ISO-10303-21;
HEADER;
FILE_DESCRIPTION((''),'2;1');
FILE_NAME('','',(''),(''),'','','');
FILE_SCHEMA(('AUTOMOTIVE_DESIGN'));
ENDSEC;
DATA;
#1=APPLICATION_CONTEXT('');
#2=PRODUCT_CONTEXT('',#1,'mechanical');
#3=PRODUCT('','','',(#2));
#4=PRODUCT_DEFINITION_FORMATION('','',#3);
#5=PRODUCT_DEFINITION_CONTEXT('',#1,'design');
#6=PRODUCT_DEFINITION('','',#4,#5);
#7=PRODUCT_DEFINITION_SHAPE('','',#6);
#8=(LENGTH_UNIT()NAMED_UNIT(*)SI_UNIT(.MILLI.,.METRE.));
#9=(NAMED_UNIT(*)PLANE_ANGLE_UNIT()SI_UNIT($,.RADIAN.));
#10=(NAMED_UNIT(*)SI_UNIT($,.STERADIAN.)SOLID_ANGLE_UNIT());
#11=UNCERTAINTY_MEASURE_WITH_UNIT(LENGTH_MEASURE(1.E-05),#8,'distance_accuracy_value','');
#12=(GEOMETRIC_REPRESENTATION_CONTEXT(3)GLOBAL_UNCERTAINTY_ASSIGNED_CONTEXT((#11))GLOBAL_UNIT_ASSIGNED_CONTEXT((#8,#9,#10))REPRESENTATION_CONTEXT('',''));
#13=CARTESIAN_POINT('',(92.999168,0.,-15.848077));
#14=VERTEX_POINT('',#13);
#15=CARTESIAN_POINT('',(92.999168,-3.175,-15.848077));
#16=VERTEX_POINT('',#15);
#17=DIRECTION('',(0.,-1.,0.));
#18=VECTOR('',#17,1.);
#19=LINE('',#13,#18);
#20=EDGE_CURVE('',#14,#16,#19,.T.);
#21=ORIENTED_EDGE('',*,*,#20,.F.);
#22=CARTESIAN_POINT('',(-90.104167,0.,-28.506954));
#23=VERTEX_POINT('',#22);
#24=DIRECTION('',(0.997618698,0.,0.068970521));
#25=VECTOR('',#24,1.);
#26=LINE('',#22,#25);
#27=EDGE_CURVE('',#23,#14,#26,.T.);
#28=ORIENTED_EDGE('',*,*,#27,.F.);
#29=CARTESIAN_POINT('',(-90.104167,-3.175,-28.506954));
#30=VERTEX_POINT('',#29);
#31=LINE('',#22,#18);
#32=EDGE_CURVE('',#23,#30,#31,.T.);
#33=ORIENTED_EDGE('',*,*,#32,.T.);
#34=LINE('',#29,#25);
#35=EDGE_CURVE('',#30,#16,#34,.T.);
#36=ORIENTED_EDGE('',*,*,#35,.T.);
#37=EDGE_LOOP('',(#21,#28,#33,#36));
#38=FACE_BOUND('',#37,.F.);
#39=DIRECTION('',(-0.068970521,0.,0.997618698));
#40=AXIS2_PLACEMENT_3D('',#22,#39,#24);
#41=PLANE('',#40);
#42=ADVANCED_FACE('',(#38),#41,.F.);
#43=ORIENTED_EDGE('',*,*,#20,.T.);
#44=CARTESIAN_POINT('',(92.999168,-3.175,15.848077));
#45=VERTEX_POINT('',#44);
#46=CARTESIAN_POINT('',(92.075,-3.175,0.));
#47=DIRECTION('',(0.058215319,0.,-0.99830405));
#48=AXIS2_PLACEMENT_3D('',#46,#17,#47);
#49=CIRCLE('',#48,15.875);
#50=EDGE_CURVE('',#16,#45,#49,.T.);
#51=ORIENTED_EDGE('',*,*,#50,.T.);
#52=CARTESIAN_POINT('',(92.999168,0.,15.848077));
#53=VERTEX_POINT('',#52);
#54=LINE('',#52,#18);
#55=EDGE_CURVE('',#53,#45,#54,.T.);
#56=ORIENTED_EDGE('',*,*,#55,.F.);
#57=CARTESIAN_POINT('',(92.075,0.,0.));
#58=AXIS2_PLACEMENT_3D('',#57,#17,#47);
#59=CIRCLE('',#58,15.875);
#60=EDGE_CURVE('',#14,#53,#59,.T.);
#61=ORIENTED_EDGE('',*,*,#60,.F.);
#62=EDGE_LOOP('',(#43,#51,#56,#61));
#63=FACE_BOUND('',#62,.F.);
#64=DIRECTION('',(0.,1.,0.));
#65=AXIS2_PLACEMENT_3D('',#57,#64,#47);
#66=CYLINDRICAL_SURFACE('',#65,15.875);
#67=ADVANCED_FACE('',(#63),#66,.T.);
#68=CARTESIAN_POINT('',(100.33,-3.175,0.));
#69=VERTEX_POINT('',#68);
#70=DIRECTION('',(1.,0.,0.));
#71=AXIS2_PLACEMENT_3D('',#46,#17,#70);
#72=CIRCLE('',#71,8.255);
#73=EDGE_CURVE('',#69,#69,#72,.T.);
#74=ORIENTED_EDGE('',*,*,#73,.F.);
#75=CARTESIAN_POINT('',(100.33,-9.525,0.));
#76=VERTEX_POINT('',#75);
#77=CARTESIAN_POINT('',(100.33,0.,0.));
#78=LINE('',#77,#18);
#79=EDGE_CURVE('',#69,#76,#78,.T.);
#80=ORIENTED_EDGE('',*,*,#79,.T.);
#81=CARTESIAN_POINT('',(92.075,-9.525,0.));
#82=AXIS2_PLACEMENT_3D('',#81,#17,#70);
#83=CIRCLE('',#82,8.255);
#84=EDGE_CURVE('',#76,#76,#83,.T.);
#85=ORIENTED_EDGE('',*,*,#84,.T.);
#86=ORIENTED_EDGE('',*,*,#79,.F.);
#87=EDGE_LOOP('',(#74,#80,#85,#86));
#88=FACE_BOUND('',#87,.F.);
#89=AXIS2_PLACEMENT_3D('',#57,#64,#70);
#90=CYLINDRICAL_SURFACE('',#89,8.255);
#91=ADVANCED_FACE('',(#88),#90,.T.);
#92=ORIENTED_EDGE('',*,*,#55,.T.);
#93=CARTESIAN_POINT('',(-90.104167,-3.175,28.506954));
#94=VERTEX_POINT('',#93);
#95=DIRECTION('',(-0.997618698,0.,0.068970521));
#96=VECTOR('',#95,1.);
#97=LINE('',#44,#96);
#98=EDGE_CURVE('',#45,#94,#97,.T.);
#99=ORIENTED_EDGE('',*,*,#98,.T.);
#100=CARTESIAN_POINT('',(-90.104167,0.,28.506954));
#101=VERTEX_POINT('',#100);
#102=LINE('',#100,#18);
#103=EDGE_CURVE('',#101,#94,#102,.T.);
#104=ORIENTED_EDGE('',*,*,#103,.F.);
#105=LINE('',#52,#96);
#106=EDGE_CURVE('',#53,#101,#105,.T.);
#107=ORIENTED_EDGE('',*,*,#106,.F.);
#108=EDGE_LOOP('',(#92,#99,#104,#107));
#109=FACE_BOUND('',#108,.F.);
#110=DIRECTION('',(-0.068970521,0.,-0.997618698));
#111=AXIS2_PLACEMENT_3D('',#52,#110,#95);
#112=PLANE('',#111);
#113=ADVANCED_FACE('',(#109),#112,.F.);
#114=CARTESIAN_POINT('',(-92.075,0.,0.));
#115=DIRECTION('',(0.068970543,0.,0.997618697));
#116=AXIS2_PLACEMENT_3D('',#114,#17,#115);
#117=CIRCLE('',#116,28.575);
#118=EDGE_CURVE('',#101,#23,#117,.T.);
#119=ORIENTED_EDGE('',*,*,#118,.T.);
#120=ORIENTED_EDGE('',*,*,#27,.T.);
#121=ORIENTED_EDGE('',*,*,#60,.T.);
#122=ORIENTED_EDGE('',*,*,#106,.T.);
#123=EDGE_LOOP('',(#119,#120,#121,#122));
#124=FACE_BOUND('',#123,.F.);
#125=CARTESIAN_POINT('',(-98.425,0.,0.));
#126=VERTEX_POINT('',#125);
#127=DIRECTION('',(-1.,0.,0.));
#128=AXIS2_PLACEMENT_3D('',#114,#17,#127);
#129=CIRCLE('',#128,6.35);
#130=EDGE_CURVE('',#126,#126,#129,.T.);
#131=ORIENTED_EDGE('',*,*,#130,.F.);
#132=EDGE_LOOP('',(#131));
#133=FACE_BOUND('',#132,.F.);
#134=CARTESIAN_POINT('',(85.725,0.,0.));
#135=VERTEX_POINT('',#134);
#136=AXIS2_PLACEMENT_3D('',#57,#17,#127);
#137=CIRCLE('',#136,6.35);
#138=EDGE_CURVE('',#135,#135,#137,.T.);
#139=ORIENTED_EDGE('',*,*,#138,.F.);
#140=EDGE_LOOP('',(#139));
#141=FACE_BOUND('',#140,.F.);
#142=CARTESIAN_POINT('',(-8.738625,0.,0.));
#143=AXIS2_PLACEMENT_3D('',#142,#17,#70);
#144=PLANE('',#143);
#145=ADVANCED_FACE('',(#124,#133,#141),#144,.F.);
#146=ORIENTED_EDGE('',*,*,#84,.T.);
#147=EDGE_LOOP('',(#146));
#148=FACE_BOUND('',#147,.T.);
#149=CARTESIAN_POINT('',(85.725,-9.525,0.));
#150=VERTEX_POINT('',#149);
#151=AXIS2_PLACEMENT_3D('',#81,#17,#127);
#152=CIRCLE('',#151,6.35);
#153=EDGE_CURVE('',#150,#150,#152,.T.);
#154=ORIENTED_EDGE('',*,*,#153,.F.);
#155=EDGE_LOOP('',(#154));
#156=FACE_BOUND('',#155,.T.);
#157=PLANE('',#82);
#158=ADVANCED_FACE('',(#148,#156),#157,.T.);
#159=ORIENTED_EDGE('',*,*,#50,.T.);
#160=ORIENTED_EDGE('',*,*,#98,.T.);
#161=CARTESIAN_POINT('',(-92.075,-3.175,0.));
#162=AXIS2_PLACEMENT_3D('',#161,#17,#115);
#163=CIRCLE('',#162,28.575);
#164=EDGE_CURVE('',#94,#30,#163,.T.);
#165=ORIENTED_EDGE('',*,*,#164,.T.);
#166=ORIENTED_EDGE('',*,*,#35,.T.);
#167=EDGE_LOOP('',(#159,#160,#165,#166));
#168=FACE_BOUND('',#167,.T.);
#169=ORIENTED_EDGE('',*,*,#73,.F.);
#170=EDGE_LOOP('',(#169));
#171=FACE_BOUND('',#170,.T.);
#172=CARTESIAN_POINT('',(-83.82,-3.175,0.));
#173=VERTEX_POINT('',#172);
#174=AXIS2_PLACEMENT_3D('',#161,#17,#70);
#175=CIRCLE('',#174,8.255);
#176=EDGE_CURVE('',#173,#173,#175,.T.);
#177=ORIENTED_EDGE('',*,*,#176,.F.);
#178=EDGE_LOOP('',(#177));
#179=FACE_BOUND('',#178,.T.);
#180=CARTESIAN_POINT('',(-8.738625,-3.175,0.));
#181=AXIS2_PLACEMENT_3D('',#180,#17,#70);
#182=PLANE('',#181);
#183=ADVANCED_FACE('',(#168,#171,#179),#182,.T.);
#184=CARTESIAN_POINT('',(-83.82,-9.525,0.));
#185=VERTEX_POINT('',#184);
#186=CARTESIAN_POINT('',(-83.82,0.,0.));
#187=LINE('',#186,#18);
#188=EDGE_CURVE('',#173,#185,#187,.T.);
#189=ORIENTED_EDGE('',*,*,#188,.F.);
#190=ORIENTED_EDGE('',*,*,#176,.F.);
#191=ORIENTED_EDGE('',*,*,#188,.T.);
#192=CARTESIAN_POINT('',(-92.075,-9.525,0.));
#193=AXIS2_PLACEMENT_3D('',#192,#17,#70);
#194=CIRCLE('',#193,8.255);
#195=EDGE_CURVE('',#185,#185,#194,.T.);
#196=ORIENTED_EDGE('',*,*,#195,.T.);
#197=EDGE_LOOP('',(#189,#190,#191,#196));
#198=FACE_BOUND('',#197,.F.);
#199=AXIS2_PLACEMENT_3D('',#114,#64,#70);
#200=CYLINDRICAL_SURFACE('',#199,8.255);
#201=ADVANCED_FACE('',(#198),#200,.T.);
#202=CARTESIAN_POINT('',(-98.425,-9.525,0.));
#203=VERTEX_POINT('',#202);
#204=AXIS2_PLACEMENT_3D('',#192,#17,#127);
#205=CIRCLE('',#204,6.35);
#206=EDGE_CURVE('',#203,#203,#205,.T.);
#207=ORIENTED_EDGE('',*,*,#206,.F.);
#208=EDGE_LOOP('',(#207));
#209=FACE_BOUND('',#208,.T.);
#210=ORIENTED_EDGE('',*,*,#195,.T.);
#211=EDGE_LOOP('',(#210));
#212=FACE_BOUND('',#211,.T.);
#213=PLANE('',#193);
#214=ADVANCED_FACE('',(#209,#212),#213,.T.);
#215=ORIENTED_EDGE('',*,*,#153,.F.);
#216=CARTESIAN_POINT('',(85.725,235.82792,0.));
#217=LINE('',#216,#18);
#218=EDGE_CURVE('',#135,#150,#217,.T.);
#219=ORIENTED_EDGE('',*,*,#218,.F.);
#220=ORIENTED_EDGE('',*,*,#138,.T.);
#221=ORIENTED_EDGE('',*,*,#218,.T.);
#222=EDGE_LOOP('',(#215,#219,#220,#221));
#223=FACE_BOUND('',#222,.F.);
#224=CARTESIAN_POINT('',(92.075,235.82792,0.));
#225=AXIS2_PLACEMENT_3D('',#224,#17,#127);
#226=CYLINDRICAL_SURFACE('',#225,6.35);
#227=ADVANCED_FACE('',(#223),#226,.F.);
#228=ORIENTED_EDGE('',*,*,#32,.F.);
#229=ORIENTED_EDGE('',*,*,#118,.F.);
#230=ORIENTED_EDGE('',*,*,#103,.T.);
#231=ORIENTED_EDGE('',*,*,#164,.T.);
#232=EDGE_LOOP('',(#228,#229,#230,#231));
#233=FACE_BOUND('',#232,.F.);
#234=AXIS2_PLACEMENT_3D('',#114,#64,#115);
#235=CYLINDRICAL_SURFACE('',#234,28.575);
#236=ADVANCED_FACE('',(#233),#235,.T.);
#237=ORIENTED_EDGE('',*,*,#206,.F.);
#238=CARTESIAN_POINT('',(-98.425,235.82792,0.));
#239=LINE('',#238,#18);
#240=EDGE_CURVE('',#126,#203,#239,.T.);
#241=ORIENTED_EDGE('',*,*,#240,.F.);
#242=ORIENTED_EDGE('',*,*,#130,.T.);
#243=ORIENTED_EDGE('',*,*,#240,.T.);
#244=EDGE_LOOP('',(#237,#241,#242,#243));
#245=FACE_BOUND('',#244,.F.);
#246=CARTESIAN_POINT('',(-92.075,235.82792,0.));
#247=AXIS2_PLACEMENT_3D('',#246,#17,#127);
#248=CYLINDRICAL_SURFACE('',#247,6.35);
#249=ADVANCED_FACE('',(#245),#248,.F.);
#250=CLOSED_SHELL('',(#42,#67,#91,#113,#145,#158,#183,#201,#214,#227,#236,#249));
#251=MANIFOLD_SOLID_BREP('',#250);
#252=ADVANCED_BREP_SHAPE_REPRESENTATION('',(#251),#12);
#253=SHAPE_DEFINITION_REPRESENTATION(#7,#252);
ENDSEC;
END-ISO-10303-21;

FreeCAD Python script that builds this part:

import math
import FreeCAD as App
import Part
import Sketcher

V = App.Vector
Q = App.Units.Quantity

doc = App.newDocument("Part")
body = doc.addObject("PartDesign::Body", "Body")

# Sketch on XZ plane
sketch1 = body.newObject("Sketcher::SketchObject", "Sketch")
sketch1.AttachmentSupport = (doc.getObject("XZ_Plane"), [""])
sketch1.MapMode = "FlatFace"
sketch1.addGeometry(Part.LineSegment(V(93, 16, 0), V(-90, 29, 0)), False)
sketch1.addGeometry(Part.ArcOfCircle(Part.Circle(V(-92, 0, 0), V(0, 0, 1), 29), math.radians(86), math.radians(274)), False)
sketch1.addGeometry(Part.LineSegment(V(-90, -29, 0), V(93, -16, 0)), False)
sketch1.addGeometry(Part.ArcOfCircle(Part.Circle(V(92, 0, 0), V(0, 0, 1), 16), math.radians(-87), math.radians(87)), False)
sketch1.addGeometry(Part.Circle(V(-92, 0, 0), V(0, 0, 1), 8), False)
sketch1.addGeometry(Part.Circle(V(92, 0, 0), V(0, 0, 1), 8), False)
sketch1.addConstraint(Sketcher.Constraint("Tangent", 0, 2, 1, 1))
sketch1.addConstraint(Sketcher.Constraint("Tangent", 1, 2, 2, 1))
sketch1.addConstraint(Sketcher.Constraint("Coincident", 2, 2, 3, 1))
sketch1.addConstraint(Sketcher.Constraint("Coincident", 3, 2, 0, 1))
sketch1.addConstraint(Sketcher.Constraint("Coincident", 4, 3, 1, 3))
sketch1.addConstraint(Sketcher.Constraint("Coincident", 5, 3, 3, 3))
sketch1.addConstraint(Sketcher.Constraint("Equal", 4, 5))
sketch1.addConstraint(Sketcher.Constraint("Symmetric", 1, 3, 3, 3, -1, 1))
sketch1.addConstraint(Sketcher.Constraint("Symmetric", 0, 2, 1, 2, -1))
sketch1.addConstraint(Sketcher.Constraint("Diameter", 4, Q("0.65 in")))
sketch1.addConstraint(Sketcher.Constraint("Radius", 1, Q("1.125 in")))
sketch1.addConstraint(Sketcher.Constraint("Radius", 3, Q("0.625 in")))
sketch1.addConstraint(Sketcher.Constraint("DistanceX", 1, 3, 3, 3, Q("7.25 in")))
sketch1.addConstraint(Sketcher.Constraint("Distance", 0, Q("7.226 in")))
pad1 = body.newObject("PartDesign::Pad", "Pad")
pad1.Profile = sketch1
pad1.Length = Q("0.125 in")

# Sketch on XZ plane
sketch2 = body.newObject("Sketcher::SketchObject", "Sketch001")
sketch2.AttachmentSupport = (doc.getObject("XZ_Plane"), [""])
sketch2.MapMode = "FlatFace"
sketch2.addGeometry(Part.Circle(V(-92, 0, 0), V(0, 0, 1), 8), False)
sketch2.addGeometry(Part.Circle(V(92, 0, 0), V(0, 0, 1), 8), False)
sketch2.addConstraint(Sketcher.Constraint("Equal", 0, 1))
sketch2.addConstraint(Sketcher.Constraint("Symmetric", 0, 3, 1, 3, -1, 1))
sketch2.addConstraint(Sketcher.Constraint("PointOnObject", 0, 3, -1))
sketch2.addConstraint(Sketcher.Constraint("Diameter", 0, Q("0.65 in")))
sketch2.addConstraint(Sketcher.Constraint("DistanceX", 0, 3, 1, 3, Q("7.25 in")))
pad2 = body.newObject("PartDesign::Pad", "Pad001")
pad2.Profile = sketch2
pad2.Length = Q("0.375 in")

# Sketch on XZ plane
sketch3 = body.newObject("Sketcher::SketchObject", "Sketch002")
sketch3.AttachmentSupport = (doc.getObject("XZ_Plane"), [""])
sketch3.MapMode = "FlatFace"
sketch3.addGeometry(Part.Circle(V(-92, 0, 0), V(0, 0, 1), 6), False)
sketch3.addGeometry(Part.Circle(V(92, 0, 0), V(0, 0, 1), 6), False)
sketch3.addConstraint(Sketcher.Constraint("Equal", 0, 1))
sketch3.addConstraint(Sketcher.Constraint("Symmetric", 0, 3, 1, 3, -1, 1))
sketch3.addConstraint(Sketcher.Constraint("PointOnObject", 0, 3, -1))
sketch3.addConstraint(Sketcher.Constraint("Diameter", 0, Q("0.5 in")))
sketch3.addConstraint(Sketcher.Constraint("DistanceX", 0, 3, 1, 3, Q("7.25 in")))
doc.recompute()
hole = body.newObject("PartDesign::Hole", "Hole")
hole.Profile = sketch3
hole.ThreadType = "None"
hole.Diameter = Q("0.5 in")
hole.DepthType = "ThroughAll"
hole.Reversed = True

doc.recompute()
